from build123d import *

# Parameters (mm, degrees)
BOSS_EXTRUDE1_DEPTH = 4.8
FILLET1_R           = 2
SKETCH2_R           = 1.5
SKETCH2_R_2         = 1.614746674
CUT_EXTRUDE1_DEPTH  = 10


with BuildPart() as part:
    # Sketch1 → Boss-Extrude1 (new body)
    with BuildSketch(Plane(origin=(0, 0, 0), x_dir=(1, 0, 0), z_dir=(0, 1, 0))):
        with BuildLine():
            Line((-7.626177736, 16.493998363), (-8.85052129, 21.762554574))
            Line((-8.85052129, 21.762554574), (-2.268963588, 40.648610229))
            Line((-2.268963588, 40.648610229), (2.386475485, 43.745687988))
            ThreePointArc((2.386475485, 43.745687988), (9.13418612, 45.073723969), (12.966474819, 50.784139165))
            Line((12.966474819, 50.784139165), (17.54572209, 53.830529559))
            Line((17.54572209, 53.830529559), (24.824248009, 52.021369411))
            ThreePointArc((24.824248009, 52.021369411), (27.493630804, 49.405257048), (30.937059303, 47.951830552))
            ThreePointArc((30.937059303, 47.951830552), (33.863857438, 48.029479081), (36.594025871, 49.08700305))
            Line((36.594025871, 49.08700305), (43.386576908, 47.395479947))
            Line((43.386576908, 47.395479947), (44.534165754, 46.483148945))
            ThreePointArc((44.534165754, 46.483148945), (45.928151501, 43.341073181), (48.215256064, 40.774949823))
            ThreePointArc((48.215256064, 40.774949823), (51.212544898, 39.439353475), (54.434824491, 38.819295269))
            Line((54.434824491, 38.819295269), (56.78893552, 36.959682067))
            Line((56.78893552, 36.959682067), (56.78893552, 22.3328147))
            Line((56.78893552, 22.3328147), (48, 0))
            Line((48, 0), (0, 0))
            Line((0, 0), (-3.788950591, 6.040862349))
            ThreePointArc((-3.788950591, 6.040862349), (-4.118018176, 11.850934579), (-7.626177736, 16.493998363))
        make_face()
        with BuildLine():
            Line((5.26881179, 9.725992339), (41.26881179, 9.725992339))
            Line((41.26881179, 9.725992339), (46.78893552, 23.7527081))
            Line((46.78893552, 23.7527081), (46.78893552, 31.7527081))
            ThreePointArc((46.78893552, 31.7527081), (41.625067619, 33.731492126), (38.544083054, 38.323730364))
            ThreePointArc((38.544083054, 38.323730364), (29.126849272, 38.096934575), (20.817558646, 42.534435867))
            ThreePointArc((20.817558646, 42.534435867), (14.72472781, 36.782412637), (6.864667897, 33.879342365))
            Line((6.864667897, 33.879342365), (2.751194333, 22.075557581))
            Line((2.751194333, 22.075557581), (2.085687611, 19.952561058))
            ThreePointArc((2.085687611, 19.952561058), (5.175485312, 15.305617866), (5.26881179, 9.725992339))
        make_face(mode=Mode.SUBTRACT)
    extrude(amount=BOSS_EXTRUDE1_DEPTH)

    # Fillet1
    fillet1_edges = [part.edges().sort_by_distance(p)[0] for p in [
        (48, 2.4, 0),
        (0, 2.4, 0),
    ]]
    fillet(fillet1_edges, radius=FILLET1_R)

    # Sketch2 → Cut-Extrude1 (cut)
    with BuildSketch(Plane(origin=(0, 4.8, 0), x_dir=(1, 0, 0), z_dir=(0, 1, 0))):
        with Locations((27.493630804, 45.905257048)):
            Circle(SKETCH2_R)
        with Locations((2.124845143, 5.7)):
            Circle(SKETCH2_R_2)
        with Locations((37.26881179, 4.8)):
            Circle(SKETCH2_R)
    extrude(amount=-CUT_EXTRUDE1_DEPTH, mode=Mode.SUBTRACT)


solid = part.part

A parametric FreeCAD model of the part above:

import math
import FreeCAD as App
import Part
import Sketcher
Q = App.Units.Quantity


def edges_at(feature, points):
    """Names of the edges that pass closest to the given points."""
    edges = feature.Shape.Edges
    near = lambda p: min(range(len(edges)), key=lambda i: edges[i].distToShape(Part.Vertex(*p))[0])
    return sorted({f"Edge{near(p) + 1}" for p in points})

doc = App.newDocument("Part")
params = doc.addObject("Spreadsheet::Sheet", "Params")
for row, (alias, value) in enumerate([
    ("sketch1_radius", "10 mm"),
    ("sketch1_width", "48 mm"),
    ("sketch1_width2", "36 mm"),
    ("sketch1_height", "8 mm"),
    ("sketch1_length", "24 mm"),
    ("pad1_length", "4.8 mm"),
    ("fillet_radius", "2 mm"),
    ("sketch2_diameter", "3 mm"),
    ("pocket1_length", "10 mm"),
], start=1):
    params.set(f"A{row}", alias)
    params.set(f"B{row}", "=" + value)
    params.setAlias(f"B{row}", alias)

body = doc.addObject("PartDesign::Body", "Body")

sketch1 = doc.addObject("Sketcher::SketchObject", "Sketch")
body.addObject(sketch1)
sketch1.AttachmentSupport = (doc.XZ_Plane, [""])
sketch1.MapMode = "FlatFace"
sketch1.addGeometry(Part.LineSegment(App.Vector(-8.9, -21.8, 0), App.Vector(-7.6, -16.5, 0)), False)
sketch1.addGeometry(Part.ArcOfCircle(Part.Circle(App.Vector(-13.5, -8.4, 0), App.Vector(0, 0, 1), 10), math.radians(-54), math.radians(14)), False)
sketch1.addGeometry(Part.LineSegment(App.Vector(-3.8, -6, 0), App.Vector(0, 0, 0)), False)
sketch1.addGeometry(Part.LineSegment(App.Vector(0, 0, 0), App.Vector(48, 0, 0)), False)
sketch1.addGeometry(Part.LineSegment(App.Vector(48, 0, 0), App.Vector(56.8, -22.3, 0)), False)
sketch1.addGeometry(Part.LineSegment(App.Vector(56.8, -22.3, 0), App.Vector(56.8, -37, 0)), False)
sketch1.addGeometry(Part.LineSegment(App.Vector(56.8, -37, 0), App.Vector(54.4, -38.8, 0)), False)
sketch1.addGeometry(Part.ArcOfCircle(Part.Circle(App.Vector(55.5, -53.1, 0), App.Vector(0, 0, 1), 14.4), math.radians(94), math.radians(121)), False)
sketch1.addGeometry(Part.ArcOfCircle(Part.Circle(App.Vector(55.3, -49.4, 0), App.Vector(0, 0, 1), 11.1), math.radians(129), math.radians(165)), False)
sketch1.addGeometry(Part.LineSegment(App.Vector(44.5, -46.5, 0), App.Vector(43.4, -47.4, 0)), False)
sketch1.addGeometry(Part.LineSegment(App.Vector(43.4, -47.4, 0), App.Vector(36.6, -49.1, 0)), False)
sketch1.addGeometry(Part.ArcOfCircle(Part.Circle(App.Vector(32.2, -56.4, 0), App.Vector(0, 0, 1), 8.6), math.radians(59), math.radians(98)), False)
sketch1.addGeometry(Part.ArcOfCircle(Part.Circle(App.Vector(33, -57.7, 0), App.Vector(0, 0, 1), 10), math.radians(102), math.radians(145)), False)
sketch1.addGeometry(Part.LineSegment(App.Vector(24.8, -52, 0), App.Vector(17.5, -53.8, 0)), False)
sketch1.addGeometry(Part.LineSegment(App.Vector(17.5, -53.8, 0), App.Vector(13, -50.8, 0)), False)
sketch1.addGeometry(Part.ArcOfCircle(Part.Circle(App.Vector(4.2, -52.6, 0), App.Vector(0, 0, 1), 9), math.radians(11), math.radians(101)), False)
sketch1.addGeometry(Part.LineSegment(App.Vector(2.4, -43.7, 0), App.Vector(-2.3, -40.6, 0)), False)
sketch1.addGeometry(Part.LineSegment(App.Vector(-2.3, -40.6, 0), App.Vector(-8.9, -21.8, 0)), False)
sketch1.addGeometry(Part.ArcOfCircle(Part.Circle(App.Vector(-4.3, -12.4, 0), App.Vector(0, 0, 1), 9.9), math.radians(-50), math.radians(15)), False)
sketch1.addGeometry(Part.LineSegment(App.Vector(2.1, -20, 0), App.Vector(2.8, -22.1, 0)), False)
sketch1.addGeometry(Part.LineSegment(App.Vector(2.8, -22.1, 0), App.Vector(6.9, -33.9, 0)), False)
sketch1.addGeometry(Part.ArcOfCircle(Part.Circle(App.Vector(3.7, -54.6, 0), App.Vector(0, 0, 1), 20.9), math.radians(35), math.radians(81)), False)
sketch1.addGeometry(Part.ArcOfCircle(Part.Circle(App.Vector(33.4, -56.1, 0), App.Vector(0, 0, 1), 18.5), math.radians(74), math.radians(133)), False)
sketch1.addGeometry(Part.ArcOfCircle(Part.Circle(App.Vector(47.3, -40.9, 0), App.Vector(0, 0, 1), 9.2), math.radians(93), math.radians(164)), False)
sketch1.addGeometry(Part.LineSegment(App.Vector(46.8, -31.8, 0), App.Vector(46.8, -23.8, 0)), False)
sketch1.addGeometry(Part.LineSegment(App.Vector(46.8, -23.8, 0), App.Vector(41.3, -9.7, 0)), False)
sketch1.addGeometry(Part.LineSegment(App.Vector(41.3, -9.7, 0), App.Vector(5.3, -9.7, 0)), False)
sketch1.addConstraint(Sketcher.Constraint("Coincident", 0, 2, 1, 1))
sketch1.addConstraint(Sketcher.Constraint("Coincident", 1, 2, 2, 1))
sketch1.addConstraint(Sketcher.Constraint("Coincident", 2, 2, 3, 1))
sketch1.addConstraint(Sketcher.Constraint("Coincident", 3, 2, 4, 1))
sketch1.addConstraint(Sketcher.Constraint("Coincident", 4, 2, 5, 1))
sketch1.addConstraint(Sketcher.Constraint("Coincident", 5, 2, 6, 1))
sketch1.addConstraint(Sketcher.Constraint("Coincident", 6, 2, 7, 1))
sketch1.addConstraint(Sketcher.Constraint("Coincident", 7, 2, 8, 1))
sketch1.addConstraint(Sketcher.Constraint("Coincident", 8, 2, 9, 1))
sketch1.addConstraint(Sketcher.Constraint("Coincident", 9, 2, 10, 1))
sketch1.addConstraint(Sketcher.Constraint("Coincident", 10, 2, 11, 1))
sketch1.addConstraint(Sketcher.Constraint("Coincident", 11, 2, 12, 1))
sketch1.addConstraint(Sketcher.Constraint("Coincident", 12, 2, 13, 1))
sketch1.addConstraint(Sketcher.Constraint("Coincident", 13, 2, 14, 1))
sketch1.addConstraint(Sketcher.Constraint("Coincident", 14, 2, 15, 1))
sketch1.addConstraint(Sketcher.Constraint("Coincident", 15, 2, 16, 1))
sketch1.addConstraint(Sketcher.Constraint("Coincident", 16, 2, 17, 1))
sketch1.addConstraint(Sketcher.Constraint("Coincident", 17, 2, 0, 1))
sketch1.addConstraint(Sketcher.Constraint("Coincident", 18, 1, 19, 1))
sketch1.addConstraint(Sketcher.Constraint("Coincident", 19, 2, 20, 1))
sketch1.addConstraint(Sketcher.Constraint("Coincident", 20, 2, 21, 2))
sketch1.addConstraint(Sketcher.Constraint("Coincident", 21, 1, 22, 2))
sketch1.addConstraint(Sketcher.Constraint("Coincident", 22, 1, 23, 2))
sketch1.addConstraint(Sketcher.Constraint("Coincident", 23, 1, 24, 1))
sketch1.addConstraint(Sketcher.Constraint("Coincident", 24, 2, 25, 1))
sketch1.addConstraint(Sketcher.Constraint("Coincident", 25, 2, 26, 1))
sketch1.addConstraint(Sketcher.Constraint("Coincident", 26, 2, 18, 2))
sketch1.addConstraint(Sketcher.Constraint("Horizontal", 3))
sketch1.addConstraint(Sketcher.Constraint("Vertical", 5))
sketch1.addConstraint(Sketcher.Constraint("Vertical", 24))
sketch1.addConstraint(Sketcher.Constraint("Horizontal", 26))
sketch1.addConstraint(Sketcher.Constraint("Coincident", 2, 2, -1, 1))
sketch1.addConstraint(Sketcher.Constraint("Parallel", 14, 16))
sketch1.addConstraint(Sketcher.Constraint("Parallel", 17, 20))
sketch1.addConstraint(Sketcher.Constraint("Parallel", 4, 25))
sketch1.addConstraint(Sketcher.Constraint("Radius", 1, Q("10 mm")))
sketch1.addConstraint(Sketcher.Constraint("DistanceX", 3, 1, 3, 2, Q("48 mm")))
sketch1.addConstraint(Sketcher.Constraint("DistanceX", 26, 2, 26, 1, Q("36 mm")))
sketch1.addConstraint(Sketcher.Constraint("DistanceY", 24, 1, 24, 2, Q("8 mm")))
sketch1.addConstraint(Sketcher.Constraint("Distance", 4, Q("24 mm")))
sketch1.addConstraint(Sketcher.Constraint("Distance", 6, Q("3 mm")))
sketch1.addConstraint(Sketcher.Constraint("Distance", 10, Q("7 mm")))
sketch1.addConstraint(Sketcher.Constraint("Distance", 17, Q("20 mm")))
sketch1.addConstraint(Sketcher.Constraint("DistanceX", 23, 1, 5, 2, Q("10 mm")))
sketch1.addConstraint(Sketcher.Constraint("Distance", 13, Q("7.5 mm")))
sketch1.addConstraint(Sketcher.Constraint("Distance", 14, Q("5.5 mm")))
sketch1.addConstraint(Sketcher.Constraint("Distance", 20, Q("12.5 mm")))
sketch1.addConstraint(Sketcher.Constraint("Radius", 21, Q("20.941741 mm")))
sketch1.addConstraint(Sketcher.Constraint("DistanceX", 15, 2, 14, 2, Q("10.579999 mm")))
sketch1.addConstraint(Sketcher.Constraint("DistanceY", 0, 2, -1, 1, Q("16.493998 mm")))
sketch1.addConstraint(Sketcher.Constraint("Radius", 7, Q("14.355268 mm")))
sketch1.addConstraint(Sketcher.Constraint("Radius", 8, Q("11.118443 mm")))
sketch1.addConstraint(Sketcher.Constraint("Radius", 11, Q("8.577242 mm")))
sketch1.addConstraint(Sketcher.Constraint("Radius", 12, Q("10.001347 mm")))
sketch1.addConstraint(Sketcher.Constraint("Radius", 15, Q("8.985438 mm")))
sketch1.addConstraint(Sketcher.Constraint("Radius", 18, Q("9.922962 mm")))
sketch1.addConstraint(Sketcher.Constraint("Radius", 22, Q("18.509437 mm")))
sketch1.addConstraint(Sketcher.Constraint("Radius", 23, Q("9.150715 mm")))
sketch1.addConstraint(Sketcher.Constraint("DistanceX", 1, 3, -1, 1, Q("13.5055 mm")))
sketch1.addConstraint(Sketcher.Constraint("DistanceY", 7, 3, -1, 1, Q("53.133601 mm")))
sketch1.addConstraint(Sketcher.Constraint("DistanceX", -1, 1, 22, 3, Q("33.404501 mm")))
sketch1.addConstraint(Sketcher.Constraint("DistanceX", 15, 3, 8, 3, Q("51.114899 mm")))
sketch1.addConstraint(Sketcher.Constraint("DistanceY", 21, 3, 1, 3, Q("46.173501 mm")))
sketch1.addConstraint(Sketcher.Constraint("DistanceY", 0, 2, 1, 3, Q("8.089102 mm")))
sketch1.addConstraint(Sketcher.Constraint("DistanceX", 1, 2, 15, 3, Q("7.9462 mm")))
sketch1.addConstraint(Sketcher.Constraint("DistanceY", 23, 3, 4, 2, Q("18.554699 mm")))
sketch1.addConstraint(Sketcher.Constraint("DistanceY", 8, 2, 7, 2, Q("5.708199 mm")))
sketch1.addConstraint(Sketcher.Constraint("DistanceY", 13, 2, 11, 2, Q("5.878699 mm")))
sketch1.addConstraint(Sketcher.Constraint("DistanceX", 13, 2, 11, 3, Q("14.630598 mm")))
sketch1.addConstraint(Sketcher.Constraint("DistanceX", 17, 2, 18, 3, Q("4.5514 mm")))
sketch1.addConstraint(Sketcher.Constraint("DistanceY", 18, 1, 1, 2, Q("13.911699 mm")))
sketch1.addConstraint(Sketcher.Constraint("DistanceX", 21, 1, 11, 2, Q("10.119501 mm")))
sketch1.addConstraint(Sketcher.Constraint("Distance", 2, Q("7.13079 mm")))
sketch1.addConstraint(Sketcher.Constraint("Distance", 9, Q("1.466052 mm")))
sketch1.addConstraint(Sketcher.Constraint("Distance", 16, Q("5.591512 mm")))
sketch1.addConstraint(Sketcher.Constraint("DistanceY", 5, 2, 5, 1, Q("14.626867 mm")))
sketch1.addConstraint(Sketcher.Constraint("DistanceY", 8, 3, -1, 1, Q("49.366809 mm")))
sketch1.addConstraint(Sketcher.Constraint("DistanceX", -1, 1, 11, 3, Q("32.17632 mm")))
sketch1.addConstraint(Sketcher.Constraint("DistanceX", 18, 3, -1, 1, Q("4.299122 mm")))
sketch1.addConstraint(Sketcher.Constraint("DistanceY", 18, 3, -1, 1, Q("12.35655 mm")))
sketch1.addConstraint(Sketcher.Constraint("DistanceX", -1, 1, 21, 3, Q("3.685731 mm")))
sketch1.addConstraint(Sketcher.Constraint("DistanceY", 7, 2, -1, 1, Q("40.77495 mm")))
sketch1.addConstraint(Sketcher.Constraint("DistanceY", 9, 2, -1, 1, Q("47.39548 mm")))
sketch1.addConstraint(Sketcher.Constraint("DistanceX", -1, 1, 11, 2, Q("30.937059 mm")))
sketch1.addConstraint(Sketcher.Constraint("DistanceY", 11, 2, -1, 1, Q("47.951831 mm")))
sketch1.addConstraint(Sketcher.Constraint("DistanceX", -1, 1, 12, 2, Q("24.824248 mm")))
sketch1.addConstraint(Sketcher.Constraint("DistanceY", 14, 2, -1, 1, Q("50.784139 mm")))
sketch1.addConstraint(Sketcher.Constraint("DistanceY", 22, 1, -1, 1, Q("38.32373 mm")))
sketch1.addConstraint(Sketcher.Constraint("DistanceY", 23, 1, -1, 1, Q("31.752708 mm")))
sketch1.addConstraint(Sketcher.Constraint("DistanceY", 19, 2, 0, 2, Q("5.581559 mm")))
sketch1.setExpression("Constraints[35]", "Params.sketch1_radius")
sketch1.setExpression("Constraints[36]", "Params.sketch1_width")
sketch1.setExpression("Constraints[37]", "Params.sketch1_width2")
sketch1.setExpression("Constraints[38]", "Params.sketch1_height")
sketch1.setExpression("Constraints[39]", "Params.sketch1_length")
pad1 = doc.addObject("PartDesign::Pad", "Pad")
body.addObject(pad1)
pad1.Profile = sketch1
pad1.setExpression("Length", "Params.pad1_length")
pad1.Reversed = True
doc.recompute()

fillet = doc.addObject("PartDesign::Fillet", "Fillet")
body.addObject(fillet)
fillet.Base = (pad1, edges_at(pad1, [(48, 2.4, 0), (0, 2.4, 0)]))
fillet.setExpression("Radius", "Params.fillet_radius")

sketch2 = doc.addObject("Sketcher::SketchObject", "Sketch001")
body.addObject(sketch2)
sketch2.AttachmentSupport = (doc.XZ_Plane, [""])
sketch2.MapMode = "FlatFace"
sketch2.AttachmentOffset = App.Placement(App.Vector(0, 0, -4.8), App.Rotation())
sketch2.addGeometry(Part.Circle(App.Vector(27.5, -45.9, 0), App.Vector(0, 0, 1), 1.5), False)
sketch2.addGeometry(Part.Circle(App.Vector(2.1, -5.7, 0), App.Vector(0, 0, 1), 1.6), False)
sketch2.addGeometry(Part.Circle(App.Vector(37.3, -4.8, 0), App.Vector(0, 0, 1), 1.5), False)
sketch2.addConstraint(Sketcher.Constraint("Equal", 0, 2))
sketch2.addConstraint(Sketcher.Constraint("Diameter", 0, Q("3 mm")))
sketch2.addConstraint(Sketcher.Constraint("DistanceY", 1, 3, -1, 1, Q("5.7 mm")))
sketch2.addConstraint(Sketcher.Constraint("DistanceY", 2, 3, -1, 1, Q("4.8 mm")))
sketch2.addConstraint(Sketcher.Constraint("Diameter", 1, Q("3.229493 mm")))
sketch2.addConstraint(Sketcher.Constraint("DistanceX", -1, 1, 0, 3, Q("27.493631 mm")))
sketch2.addConstraint(Sketcher.Constraint("DistanceX", -1, 1, 2, 3, Q("37.268812 mm")))
sketch2.addConstraint(Sketcher.Constraint("DistanceY", 0, 3, -1, 1, Q("45.905257 mm")))
sketch2.addConstraint(Sketcher.Constraint("DistanceX", -1, 1, 1, 3, Q("2.124845 mm")))
sketch2.setExpression("Constraints[1]", "Params.sketch2_diameter")
pocket1 = doc.addObject("PartDesign::Pocket", "Pocket")
body.addObject(pocket1)
pocket1.Profile = sketch2
pocket1.setExpression("Length", "Params.pocket1_length")
pocket1.Reversed = True

doc.recompute()
